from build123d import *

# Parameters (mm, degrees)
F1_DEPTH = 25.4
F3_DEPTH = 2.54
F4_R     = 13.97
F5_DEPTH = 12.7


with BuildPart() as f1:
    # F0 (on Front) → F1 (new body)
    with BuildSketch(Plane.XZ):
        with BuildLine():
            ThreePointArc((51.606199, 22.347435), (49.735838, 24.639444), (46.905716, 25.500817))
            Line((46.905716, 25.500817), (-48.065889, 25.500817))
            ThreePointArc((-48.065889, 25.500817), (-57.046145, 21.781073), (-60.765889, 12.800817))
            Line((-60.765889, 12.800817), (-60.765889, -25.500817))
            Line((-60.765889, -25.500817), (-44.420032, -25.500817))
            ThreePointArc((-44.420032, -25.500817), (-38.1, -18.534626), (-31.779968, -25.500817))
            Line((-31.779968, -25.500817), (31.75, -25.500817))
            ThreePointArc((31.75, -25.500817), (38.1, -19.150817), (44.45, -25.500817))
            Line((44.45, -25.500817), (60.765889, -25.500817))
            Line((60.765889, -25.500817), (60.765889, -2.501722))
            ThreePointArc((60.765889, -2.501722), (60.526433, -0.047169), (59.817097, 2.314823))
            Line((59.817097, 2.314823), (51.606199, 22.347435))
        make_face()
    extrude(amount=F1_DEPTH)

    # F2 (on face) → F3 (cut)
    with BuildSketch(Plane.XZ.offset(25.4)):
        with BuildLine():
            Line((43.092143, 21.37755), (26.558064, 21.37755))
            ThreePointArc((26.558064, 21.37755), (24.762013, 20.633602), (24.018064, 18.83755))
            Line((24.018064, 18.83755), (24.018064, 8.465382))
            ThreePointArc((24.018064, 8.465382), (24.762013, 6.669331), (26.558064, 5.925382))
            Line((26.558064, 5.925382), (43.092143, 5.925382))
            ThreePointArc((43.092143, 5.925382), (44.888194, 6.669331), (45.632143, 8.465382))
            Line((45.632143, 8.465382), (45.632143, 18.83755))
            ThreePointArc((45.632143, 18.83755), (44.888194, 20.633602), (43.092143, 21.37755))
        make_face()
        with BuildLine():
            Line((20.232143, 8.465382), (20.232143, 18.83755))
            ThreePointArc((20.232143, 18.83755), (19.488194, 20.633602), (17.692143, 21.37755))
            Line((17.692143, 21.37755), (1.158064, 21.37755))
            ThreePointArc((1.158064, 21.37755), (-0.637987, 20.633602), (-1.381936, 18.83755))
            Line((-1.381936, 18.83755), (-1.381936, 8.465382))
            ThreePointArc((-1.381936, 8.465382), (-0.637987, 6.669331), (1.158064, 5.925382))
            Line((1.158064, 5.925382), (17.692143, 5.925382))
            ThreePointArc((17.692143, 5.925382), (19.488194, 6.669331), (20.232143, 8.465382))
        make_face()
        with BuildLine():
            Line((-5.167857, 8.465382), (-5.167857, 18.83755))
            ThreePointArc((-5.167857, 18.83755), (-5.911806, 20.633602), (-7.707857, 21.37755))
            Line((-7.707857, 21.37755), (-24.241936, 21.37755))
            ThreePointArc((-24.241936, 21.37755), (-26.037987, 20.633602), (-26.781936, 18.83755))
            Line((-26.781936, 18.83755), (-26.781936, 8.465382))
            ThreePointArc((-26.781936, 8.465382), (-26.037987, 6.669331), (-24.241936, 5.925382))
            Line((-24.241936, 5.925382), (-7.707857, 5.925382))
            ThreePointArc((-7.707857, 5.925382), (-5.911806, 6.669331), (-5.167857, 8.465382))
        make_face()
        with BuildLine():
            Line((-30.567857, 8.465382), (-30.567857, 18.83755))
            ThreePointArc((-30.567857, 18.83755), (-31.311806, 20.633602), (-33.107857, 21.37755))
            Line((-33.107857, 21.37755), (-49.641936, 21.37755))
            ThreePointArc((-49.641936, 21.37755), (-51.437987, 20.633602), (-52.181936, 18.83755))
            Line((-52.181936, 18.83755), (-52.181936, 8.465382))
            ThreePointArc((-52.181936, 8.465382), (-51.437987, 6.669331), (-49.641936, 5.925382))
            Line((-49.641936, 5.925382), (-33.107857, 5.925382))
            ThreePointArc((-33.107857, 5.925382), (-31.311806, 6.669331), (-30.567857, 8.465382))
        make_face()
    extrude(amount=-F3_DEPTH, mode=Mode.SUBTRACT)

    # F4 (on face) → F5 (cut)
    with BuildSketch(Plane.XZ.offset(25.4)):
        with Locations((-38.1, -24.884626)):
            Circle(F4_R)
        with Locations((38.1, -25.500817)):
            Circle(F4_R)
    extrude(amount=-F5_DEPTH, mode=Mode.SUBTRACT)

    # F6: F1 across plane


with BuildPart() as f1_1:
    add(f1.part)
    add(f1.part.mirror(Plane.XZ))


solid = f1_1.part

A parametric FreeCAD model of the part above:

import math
import FreeCAD as App
import Part
import Sketcher

V = App.Vector
Q = App.Units.Quantity

doc = App.newDocument("Part")
body = doc.addObject("PartDesign::Body", "Body")

# Sketch on XZ plane
sketch1 = doc.addObject("Sketcher::SketchObject", "Sketch")
body.addObject(sketch1)
sketch1.AttachmentSupport = (doc.XZ_Plane, [""])
sketch1.MapMode = "FlatFace"
sketch1.addGeometry(Part.ArcOfCircle(Part.Circle(V(46.905718, 20.42082, 0), V(0, 0, 1), 5.079997), math.radians(22.287553), math.radians(90.000018)), False)
sketch1.addGeometry(Part.LineSegment(V(46.905716, 25.500817, 0), V(-48.065889, 25.500817, 0)), False)
sketch1.addGeometry(Part.ArcOfCircle(Part.Circle(V(-48.065889, 12.800817, 0), V(0, 0, 1), 12.7), math.radians(90.000002), math.radians(179.999998)), False)
sketch1.addGeometry(Part.LineSegment(V(-60.765889, 12.800817, 0), V(-60.765889, -25.500817, 0)), False)
sketch1.addGeometry(Part.LineSegment(V(-60.765889, -25.500817, 0), V(-44.420032, -25.500817, 0)), False)
sketch1.addGeometry(Part.ArcOfCircle(Part.Circle(V(-38.1, -24.884626, 0), V(0, 0, 1), 6.35), math.radians(-5.568631), math.radians(185.568631)), False)
sketch1.addGeometry(Part.LineSegment(V(-31.779968, -25.500817, 0), V(31.75, -25.500817, 0)), False)
sketch1.addGeometry(Part.ArcOfCircle(Part.Circle(V(38.1, -25.500817, 0), V(0, 0, 1), 6.35), math.radians(0), math.radians(180)), False)
sketch1.addGeometry(Part.LineSegment(V(44.45, -25.500817, 0), V(60.765889, -25.500817, 0)), False)
sketch1.addGeometry(Part.LineSegment(V(60.765889, -25.500817, 0), V(60.765889, -2.501722, 0)), False)
sketch1.addGeometry(Part.ArcOfCircle(Part.Circle(V(48.065868, -2.501727, 0), V(0, 0, 1), 12.700021), math.radians(0.000021), math.radians(22.287559)), False)
sketch1.addGeometry(Part.LineSegment(V(59.817097, 2.314823, 0), V(51.606199, 22.347435, 0)), False)
sketch1.addConstraint(Sketcher.Constraint("Coincident", 0, 2, 1, 1))
sketch1.addConstraint(Sketcher.Constraint("Coincident", 1, 2, 2, 1))
sketch1.addConstraint(Sketcher.Constraint("Coincident", 2, 2, 3, 1))
sketch1.addConstraint(Sketcher.Constraint("Coincident", 3, 2, 4, 1))
sketch1.addConstraint(Sketcher.Constraint("Coincident", 4, 2, 5, 2))
sketch1.addConstraint(Sketcher.Constraint("Coincident", 5, 1, 6, 1))
sketch1.addConstraint(Sketcher.Constraint("Coincident", 6, 2, 7, 2))
sketch1.addConstraint(Sketcher.Constraint("Coincident", 7, 1, 8, 1))
sketch1.addConstraint(Sketcher.Constraint("Coincident", 8, 2, 9, 1))
sketch1.addConstraint(Sketcher.Constraint("Coincident", 9, 2, 10, 1))
sketch1.addConstraint(Sketcher.Constraint("Coincident", 10, 2, 11, 1))
sketch1.addConstraint(Sketcher.Constraint("Coincident", 11, 2, 0, 1))
sketch1.addConstraint(Sketcher.Constraint("Horizontal", 1))
sketch1.addConstraint(Sketcher.Constraint("Vertical", 3))
sketch1.addConstraint(Sketcher.Constraint("Horizontal", 4))
sketch1.addConstraint(Sketcher.Constraint("Horizontal", 6))
sketch1.addConstraint(Sketcher.Constraint("Horizontal", 8))
sketch1.addConstraint(Sketcher.Constraint("Vertical", 9))
sketch1.addConstraint(Sketcher.Constraint("Radius", 0, Q("0.1999999 in")))
sketch1.addConstraint(Sketcher.Constraint("Radius", 2, Q("0.5 in")))
sketch1.addConstraint(Sketcher.Constraint("Radius", 5, Q("0.25 in")))
sketch1.addConstraint(Sketcher.Constraint("Radius", 7, Q("0.25 in")))
sketch1.addConstraint(Sketcher.Constraint("DistanceX", 5, 3, 7, 3, Q("3 in")))
sketch1.addConstraint(Sketcher.Constraint("DistanceX", 5, 3, -1, 1, Q("1.5 in")))
sketch1.addConstraint(Sketcher.Constraint("DistanceX", 2, 2, 1, 2, Q("0.5 in")))
sketch1.addConstraint(Sketcher.Constraint("DistanceY", 2, 2, 1, 2, Q("0.5 in")))
sketch1.addConstraint(Sketcher.Constraint("Radius", 10, 12.700021))
sketch1.addConstraint(Sketcher.Constraint("DistanceX", 8, 1, 8, 2, 16.315889))
sketch1.addConstraint(Sketcher.Constraint("DistanceX", -1, 1, 11, 2, 51.606199))
sketch1.addConstraint(Sketcher.Constraint("DistanceY", 5, 3, 10, 3, 22.382899))
sketch1.addConstraint(Sketcher.Constraint("DistanceX", 1, 2, 1, 1, 94.971605))
sketch1.addConstraint(Sketcher.Constraint("DistanceX", 4, 1, 4, 2, 16.345857))
sketch1.addConstraint(Sketcher.Constraint("DistanceX", 6, 1, 6, 2, 63.529968))
sketch1.addConstraint(Sketcher.Constraint("DistanceY", 3, 2, 3, 1, 38.301634))
sketch1.addConstraint(Sketcher.Constraint("DistanceY", 9, 1, 9, 2, 22.999095))
sketch1.addConstraint(Sketcher.Constraint("DistanceY", -1, 1, 0, 3, 20.42082))
sketch1.addConstraint(Sketcher.Constraint("DistanceX", 2, 3, -1, 1, 48.065889))
sketch1.addConstraint(Sketcher.Constraint("DistanceY", 9, 2, -1, 1, 2.501722))
sketch1.addConstraint(Sketcher.Constraint("DistanceY", 7, 3, 5, 3, 0.616191))
sketch1.addConstraint(Sketcher.Constraint("DistanceX", 0, 3, 10, 3, 1.16015))
sketch1.addConstraint(Sketcher.Constraint("DistanceX", 10, 3, 10, 2, 11.751229))
pad1 = doc.addObject("PartDesign::Pad", "Pad")
body.addObject(pad1)
pad1.Profile = sketch1
pad1.Length = Q("1 in")

# Sketch on XZ plane
sketch2 = doc.addObject("Sketcher::SketchObject", "Sketch001")
body.addObject(sketch2)
sketch2.AttachmentSupport = (doc.XZ_Plane, [""])
sketch2.MapMode = "FlatFace"
sketch2.AttachmentOffset = App.Placement(V(0, 0, 1 * 25.4), App.Rotation())
sketch2.addGeometry(Part.LineSegment(V(43.1, 21.4, 0), V(26.6, 21.4, 0)), False)
sketch2.addGeometry(Part.ArcOfCircle(Part.Circle(V(26.6, 18.8, 0), V(0, 0, 1), 2.5), math.radians(90), math.radians(180)), False)
sketch2.addGeometry(Part.LineSegment(V(24, 18.8, 0), V(24, 8.5, 0)), False)
sketch2.addGeometry(Part.ArcOfCircle(Part.Circle(V(26.6, 8.5, 0), V(0, 0, 1), 2.5), math.radians(-180), math.radians(-90)), False)
sketch2.addGeometry(Part.LineSegment(V(26.6, 5.9, 0), V(43.1, 5.9, 0)), False)
sketch2.addGeometry(Part.ArcOfCircle(Part.Circle(V(43.1, 8.5, 0), V(0, 0, 1), 2.5), math.radians(-90), math.radians(0)), False)
sketch2.addGeometry(Part.LineSegment(V(45.6, 8.5, 0), V(45.6, 18.8, 0)), False)
sketch2.addGeometry(Part.ArcOfCircle(Part.Circle(V(43.1, 18.8, 0), V(0, 0, 1), 2.5), math.radians(0), math.radians(90)), False)
sketch2.addGeometry(Part.LineSegment(V(20.2, 8.5, 0), V(20.2, 18.8, 0)), False)
sketch2.addGeometry(Part.ArcOfCircle(Part.Circle(V(17.7, 18.8, 0), V(0, 0, 1), 2.5), math.radians(0), math.radians(90)), False)
sketch2.addGeometry(Part.LineSegment(V(17.7, 21.4, 0), V(1.2, 21.4, 0)), False)
sketch2.addGeometry(Part.ArcOfCircle(Part.Circle(V(1.2, 18.8, 0), V(0, 0, 1), 2.5), math.radians(90), math.radians(180)), False)
sketch2.addGeometry(Part.LineSegment(V(-1.4, 18.8, 0), V(-1.4, 8.5, 0)), False)
sketch2.addGeometry(Part.ArcOfCircle(Part.Circle(V(1.2, 8.5, 0), V(0, 0, 1), 2.5), math.radians(-180), math.radians(-90)), False)
sketch2.addGeometry(Part.LineSegment(V(1.2, 5.9, 0), V(17.7, 5.9, 0)), False)
sketch2.addGeometry(Part.ArcOfCircle(Part.Circle(V(17.7, 8.5, 0), V(0, 0, 1), 2.5), math.radians(-90), math.radians(0)), False)
sketch2.addGeometry(Part.LineSegment(V(-5.2, 8.5, 0), V(-5.2, 18.8, 0)), False)
sketch2.addGeometry(Part.ArcOfCircle(Part.Circle(V(-7.7, 18.8, 0), V(0, 0, 1), 2.5), math.radians(0), math.radians(90)), False)
sketch2.addGeometry(Part.LineSegment(V(-7.7, 21.4, 0), V(-24.2, 21.4, 0)), False)
sketch2.addGeometry(Part.ArcOfCircle(Part.Circle(V(-24.2, 18.8, 0), V(0, 0, 1), 2.5), math.radians(90), math.radians(180)), False)
sketch2.addGeometry(Part.LineSegment(V(-26.8, 18.8, 0), V(-26.8, 8.5, 0)), False)
sketch2.addGeometry(Part.ArcOfCircle(Part.Circle(V(-24.2, 8.5, 0), V(0, 0, 1), 2.5), math.radians(-180), math.radians(-90)), False)
sketch2.addGeometry(Part.LineSegment(V(-24.2, 5.9, 0), V(-7.7, 5.9, 0)), False)
sketch2.addGeometry(Part.ArcOfCircle(Part.Circle(V(-7.7, 8.5, 0), V(0, 0, 1), 2.5), math.radians(-90), math.radians(0)), False)
sketch2.addGeometry(Part.LineSegment(V(-30.6, 8.5, 0), V(-30.6, 18.8, 0)), False)
sketch2.addGeometry(Part.ArcOfCircle(Part.Circle(V(-33.1, 18.8, 0), V(0, 0, 1), 2.5), math.radians(0), math.radians(90)), False)
sketch2.addGeometry(Part.LineSegment(V(-33.1, 21.4, 0), V(-49.6, 21.4, 0)), False)
sketch2.addGeometry(Part.ArcOfCircle(Part.Circle(V(-49.6, 18.8, 0), V(0, 0, 1), 2.5), math.radians(90), math.radians(180)), False)
sketch2.addGeometry(Part.LineSegment(V(-52.2, 18.8, 0), V(-52.2, 8.5, 0)), False)
sketch2.addGeometry(Part.ArcOfCircle(Part.Circle(V(-49.6, 8.5, 0), V(0, 0, 1), 2.5), math.radians(-180), math.radians(-90)), False)
sketch2.addGeometry(Part.LineSegment(V(-49.6, 5.9, 0), V(-33.1, 5.9, 0)), False)
sketch2.addGeometry(Part.ArcOfCircle(Part.Circle(V(-33.1, 8.5, 0), V(0, 0, 1), 2.5), math.radians(-90), math.radians(0)), False)
sketch2.addConstraint(Sketcher.Constraint("Tangent", 0, 2, 1, 1))
sketch2.addConstraint(Sketcher.Constraint("Tangent", 1, 2, 2, 1))
sketch2.addConstraint(Sketcher.Constraint("Tangent", 2, 2, 3, 1))
sketch2.addConstraint(Sketcher.Constraint("Tangent", 3, 2, 4, 1))
sketch2.addConstraint(Sketcher.Constraint("Tangent", 4, 2, 5, 1))
sketch2.addConstraint(Sketcher.Constraint("Tangent", 5, 2, 6, 1))
sketch2.addConstraint(Sketcher.Constraint("Tangent", 6, 2, 7, 1))
sketch2.addConstraint(Sketcher.Constraint("Tangent", 7, 2, 0, 1))
sketch2.addConstraint(Sketcher.Constraint("Tangent", 8, 2, 9, 1))
sketch2.addConstraint(Sketcher.Constraint("Tangent", 9, 2, 10, 1))
sketch2.addConstraint(Sketcher.Constraint("Tangent", 10, 2, 11, 1))
sketch2.addConstraint(Sketcher.Constraint("Tangent", 11, 2, 12, 1))
sketch2.addConstraint(Sketcher.Constraint("Tangent", 12, 2, 13, 1))
sketch2.addConstraint(Sketcher.Constraint("Tangent", 13, 2, 14, 1))
sketch2.addConstraint(Sketcher.Constraint("Tangent", 14, 2, 15, 1))
sketch2.addConstraint(Sketcher.Constraint("Tangent", 15, 2, 8, 1))
sketch2.addConstraint(Sketcher.Constraint("Tangent", 16, 2, 17, 1))
sketch2.addConstraint(Sketcher.Constraint("Tangent", 17, 2, 18, 1))
sketch2.addConstraint(Sketcher.Constraint("Tangent", 18, 2, 19, 1))
sketch2.addConstraint(Sketcher.Constraint("Tangent", 19, 2, 20, 1))
sketch2.addConstraint(Sketcher.Constraint("Tangent", 20, 2, 21, 1))
sketch2.addConstraint(Sketcher.Constraint("Tangent", 21, 2, 22, 1))
sketch2.addConstraint(Sketcher.Constraint("Tangent", 22, 2, 23, 1))
sketch2.addConstraint(Sketcher.Constraint("Tangent", 23, 2, 16, 1))
sketch2.addConstraint(Sketcher.Constraint("Tangent", 24, 2, 25, 1))
sketch2.addConstraint(Sketcher.Constraint("Tangent", 25, 2, 26, 1))
sketch2.addConstraint(Sketcher.Constraint("Tangent", 26, 2, 27, 1))
sketch2.addConstraint(Sketcher.Constraint("Tangent", 27, 2, 28, 1))
sketch2.addConstraint(Sketcher.Constraint("Tangent", 28, 2, 29, 1))
sketch2.addConstraint(Sketcher.Constraint("Tangent", 29, 2, 30, 1))
sketch2.addConstraint(Sketcher.Constraint("Tangent", 30, 2, 31, 1))
sketch2.addConstraint(Sketcher.Constraint("Tangent", 31, 2, 24, 1))
sketch2.addConstraint(Sketcher.Constraint("Horizontal", 0))
sketch2.addConstraint(Sketcher.Constraint("Vertical", 2))
sketch2.addConstraint(Sketcher.Constraint("Horizontal", 4))
sketch2.addConstraint(Sketcher.Constraint("Vertical", 6))
sketch2.addConstraint(Sketcher.Constraint("Vertical", 8))
sketch2.addConstraint(Sketcher.Constraint("Horizontal", 10))
sketch2.addConstraint(Sketcher.Constraint("Vertical", 12))
sketch2.addConstraint(Sketcher.Constraint("Horizontal", 14))
sketch2.addConstraint(Sketcher.Constraint("Vertical", 16))
sketch2.addConstraint(Sketcher.Constraint("Horizontal", 18))
sketch2.addConstraint(Sketcher.Constraint("Vertical", 20))
sketch2.addConstraint(Sketcher.Constraint("Horizontal", 22))
sketch2.addConstraint(Sketcher.Constraint("Vertical", 24))
sketch2.addConstraint(Sketcher.Constraint("Horizontal", 26))
sketch2.addConstraint(Sketcher.Constraint("Vertical", 28))
sketch2.addConstraint(Sketcher.Constraint("Horizontal", 30))
sketch2.addConstraint(Sketcher.Constraint("Equal", 1, 3))
sketch2.addConstraint(Sketcher.Constraint("Equal", 3, 5))
sketch2.addConstraint(Sketcher.Constraint("Equal", 5, 7))
sketch2.addConstraint(Sketcher.Constraint("Equal", 7, 9))
sketch2.addConstraint(Sketcher.Constraint("Equal", 9, 11))
sketch2.addConstraint(Sketcher.Constraint("Equal", 11, 13))
sketch2.addConstraint(Sketcher.Constraint("Equal", 13, 15))
sketch2.addConstraint(Sketcher.Constraint("Equal", 15, 17))
sketch2.addConstraint(Sketcher.Constraint("Equal", 17, 19))
sketch2.addConstraint(Sketcher.Constraint("Equal", 19, 21))
sketch2.addConstraint(Sketcher.Constraint("Equal", 21, 23))
sketch2.addConstraint(Sketcher.Constraint("Equal", 23, 25))
sketch2.addConstraint(Sketcher.Constraint("Equal", 25, 27))
sketch2.addConstraint(Sketcher.Constraint("Equal", 27, 29))
sketch2.addConstraint(Sketcher.Constraint("Equal", 29, 31))
sketch2.addConstraint(Sketcher.Constraint("Horizontal", 7, 3, 9, 3))
sketch2.addConstraint(Sketcher.Constraint("Horizontal", 5, 3, 13, 3))
sketch2.addConstraint(Sketcher.Constraint("Horizontal", 11, 3, 17, 3))
sketch2.addConstraint(Sketcher.Constraint("Horizontal", 15, 3, 21, 3))
sketch2.addConstraint(Sketcher.Constraint("Horizontal", 19, 3, 25, 3))
sketch2.addConstraint(Sketcher.Constraint("Horizontal", 23, 3, 29, 3))
sketch2.addConstraint(Sketcher.Constraint("Equal", 4, 10))
sketch2.addConstraint(Sketcher.Constraint("Equal", 14, 18))
sketch2.addConstraint(Sketcher.Constraint("Equal", 22, 26))
sketch2.addConstraint(Sketcher.Constraint("Radius", 1, Q("0.1 in")))
sketch2.addConstraint(Sketcher.Constraint("DistanceX", 9, 3, 7, 3, Q("1 in")))
sketch2.addConstraint(Sketcher.Constraint("DistanceX", 17, 3, 9, 3, Q("1 in")))
sketch2.addConstraint(Sketcher.Constraint("DistanceX", 25, 3, 17, 3, Q("1 in")))
sketch2.addConstraint(Sketcher.Constraint("DistanceX", 0, 2, 0, 1, 16.534079))
sketch2.addConstraint(Sketcher.Constraint("DistanceY", 2, 2, 2, 1, 10.372168))
sketch2.addConstraint(Sketcher.Constraint("DistanceY", -1, 1, 1, 3, 18.837551))
sketch2.addConstraint(Sketcher.Constraint("DistanceX", -1, 1, 1, 3, 26.558063))
pocket1 = doc.addObject("PartDesign::Pocket", "Pocket")
body.addObject(pocket1)
pocket1.Profile = sketch2
pocket1.Length = Q("0.1 in")

# Sketch on XZ plane
sketch3 = doc.addObject("Sketcher::SketchObject", "Sketch002")
body.addObject(sketch3)
sketch3.AttachmentSupport = (doc.XZ_Plane, [""])
sketch3.MapMode = "FlatFace"
sketch3.AttachmentOffset = App.Placement(V(0, 0, 1 * 25.4), App.Rotation())
sketch3.addGeometry(Part.Circle(V(-38, -25, 0), V(0, 0, 1), 14), False)
sketch3.addGeometry(Part.Circle(V(38, -26, 0), V(0, 0, 1), 14), False)
sketch3.addConstraint(Sketcher.Constraint("Equal", 0, 1))
sketch3.addConstraint(Sketcher.Constraint("Diameter", 0, Q("1.1 in")))
sketch3.addConstraint(Sketcher.Constraint("DistanceX", 0, 3, 1, 3, Q("3 in")))
sketch3.addConstraint(Sketcher.Constraint("DistanceX", 0, 3, -1, 1, Q("1.5 in")))
sketch3.addConstraint(Sketcher.Constraint("DistanceY", 1, 3, 0, 3, 0.616191))
sketch3.addConstraint(Sketcher.Constraint("DistanceY", 0, 3, -1, 1, 24.884626))
pocket2 = doc.addObject("PartDesign::Pocket", "Pocket001")
body.addObject(pocket2)
pocket2.Profile = sketch3
pocket2.Length = Q("0.5 in")
body2 = doc.addObject("PartDesign::Body", "Body001")
doc.recompute()

body2.BaseFeature = body
doc.recompute()

mirroring = doc.addObject("Part::Mirroring", "Mirroring")
mirroring.Source = body
mirroring.Base = V(0, 0, 0)
mirroring.Normal = V(0, -1, 0)
body3 = doc.addObject("PartDesign::Body", "Body002")
body3.BaseFeature = mirroring
boolean = doc.addObject("PartDesign::Boolean", "Boolean")
body2.addObject(boolean)
boolean.Type = "Fuse"
boolean.addObjects([body3])
doc.recompute()
mirroring.Visibility = False

doc.recompute()
